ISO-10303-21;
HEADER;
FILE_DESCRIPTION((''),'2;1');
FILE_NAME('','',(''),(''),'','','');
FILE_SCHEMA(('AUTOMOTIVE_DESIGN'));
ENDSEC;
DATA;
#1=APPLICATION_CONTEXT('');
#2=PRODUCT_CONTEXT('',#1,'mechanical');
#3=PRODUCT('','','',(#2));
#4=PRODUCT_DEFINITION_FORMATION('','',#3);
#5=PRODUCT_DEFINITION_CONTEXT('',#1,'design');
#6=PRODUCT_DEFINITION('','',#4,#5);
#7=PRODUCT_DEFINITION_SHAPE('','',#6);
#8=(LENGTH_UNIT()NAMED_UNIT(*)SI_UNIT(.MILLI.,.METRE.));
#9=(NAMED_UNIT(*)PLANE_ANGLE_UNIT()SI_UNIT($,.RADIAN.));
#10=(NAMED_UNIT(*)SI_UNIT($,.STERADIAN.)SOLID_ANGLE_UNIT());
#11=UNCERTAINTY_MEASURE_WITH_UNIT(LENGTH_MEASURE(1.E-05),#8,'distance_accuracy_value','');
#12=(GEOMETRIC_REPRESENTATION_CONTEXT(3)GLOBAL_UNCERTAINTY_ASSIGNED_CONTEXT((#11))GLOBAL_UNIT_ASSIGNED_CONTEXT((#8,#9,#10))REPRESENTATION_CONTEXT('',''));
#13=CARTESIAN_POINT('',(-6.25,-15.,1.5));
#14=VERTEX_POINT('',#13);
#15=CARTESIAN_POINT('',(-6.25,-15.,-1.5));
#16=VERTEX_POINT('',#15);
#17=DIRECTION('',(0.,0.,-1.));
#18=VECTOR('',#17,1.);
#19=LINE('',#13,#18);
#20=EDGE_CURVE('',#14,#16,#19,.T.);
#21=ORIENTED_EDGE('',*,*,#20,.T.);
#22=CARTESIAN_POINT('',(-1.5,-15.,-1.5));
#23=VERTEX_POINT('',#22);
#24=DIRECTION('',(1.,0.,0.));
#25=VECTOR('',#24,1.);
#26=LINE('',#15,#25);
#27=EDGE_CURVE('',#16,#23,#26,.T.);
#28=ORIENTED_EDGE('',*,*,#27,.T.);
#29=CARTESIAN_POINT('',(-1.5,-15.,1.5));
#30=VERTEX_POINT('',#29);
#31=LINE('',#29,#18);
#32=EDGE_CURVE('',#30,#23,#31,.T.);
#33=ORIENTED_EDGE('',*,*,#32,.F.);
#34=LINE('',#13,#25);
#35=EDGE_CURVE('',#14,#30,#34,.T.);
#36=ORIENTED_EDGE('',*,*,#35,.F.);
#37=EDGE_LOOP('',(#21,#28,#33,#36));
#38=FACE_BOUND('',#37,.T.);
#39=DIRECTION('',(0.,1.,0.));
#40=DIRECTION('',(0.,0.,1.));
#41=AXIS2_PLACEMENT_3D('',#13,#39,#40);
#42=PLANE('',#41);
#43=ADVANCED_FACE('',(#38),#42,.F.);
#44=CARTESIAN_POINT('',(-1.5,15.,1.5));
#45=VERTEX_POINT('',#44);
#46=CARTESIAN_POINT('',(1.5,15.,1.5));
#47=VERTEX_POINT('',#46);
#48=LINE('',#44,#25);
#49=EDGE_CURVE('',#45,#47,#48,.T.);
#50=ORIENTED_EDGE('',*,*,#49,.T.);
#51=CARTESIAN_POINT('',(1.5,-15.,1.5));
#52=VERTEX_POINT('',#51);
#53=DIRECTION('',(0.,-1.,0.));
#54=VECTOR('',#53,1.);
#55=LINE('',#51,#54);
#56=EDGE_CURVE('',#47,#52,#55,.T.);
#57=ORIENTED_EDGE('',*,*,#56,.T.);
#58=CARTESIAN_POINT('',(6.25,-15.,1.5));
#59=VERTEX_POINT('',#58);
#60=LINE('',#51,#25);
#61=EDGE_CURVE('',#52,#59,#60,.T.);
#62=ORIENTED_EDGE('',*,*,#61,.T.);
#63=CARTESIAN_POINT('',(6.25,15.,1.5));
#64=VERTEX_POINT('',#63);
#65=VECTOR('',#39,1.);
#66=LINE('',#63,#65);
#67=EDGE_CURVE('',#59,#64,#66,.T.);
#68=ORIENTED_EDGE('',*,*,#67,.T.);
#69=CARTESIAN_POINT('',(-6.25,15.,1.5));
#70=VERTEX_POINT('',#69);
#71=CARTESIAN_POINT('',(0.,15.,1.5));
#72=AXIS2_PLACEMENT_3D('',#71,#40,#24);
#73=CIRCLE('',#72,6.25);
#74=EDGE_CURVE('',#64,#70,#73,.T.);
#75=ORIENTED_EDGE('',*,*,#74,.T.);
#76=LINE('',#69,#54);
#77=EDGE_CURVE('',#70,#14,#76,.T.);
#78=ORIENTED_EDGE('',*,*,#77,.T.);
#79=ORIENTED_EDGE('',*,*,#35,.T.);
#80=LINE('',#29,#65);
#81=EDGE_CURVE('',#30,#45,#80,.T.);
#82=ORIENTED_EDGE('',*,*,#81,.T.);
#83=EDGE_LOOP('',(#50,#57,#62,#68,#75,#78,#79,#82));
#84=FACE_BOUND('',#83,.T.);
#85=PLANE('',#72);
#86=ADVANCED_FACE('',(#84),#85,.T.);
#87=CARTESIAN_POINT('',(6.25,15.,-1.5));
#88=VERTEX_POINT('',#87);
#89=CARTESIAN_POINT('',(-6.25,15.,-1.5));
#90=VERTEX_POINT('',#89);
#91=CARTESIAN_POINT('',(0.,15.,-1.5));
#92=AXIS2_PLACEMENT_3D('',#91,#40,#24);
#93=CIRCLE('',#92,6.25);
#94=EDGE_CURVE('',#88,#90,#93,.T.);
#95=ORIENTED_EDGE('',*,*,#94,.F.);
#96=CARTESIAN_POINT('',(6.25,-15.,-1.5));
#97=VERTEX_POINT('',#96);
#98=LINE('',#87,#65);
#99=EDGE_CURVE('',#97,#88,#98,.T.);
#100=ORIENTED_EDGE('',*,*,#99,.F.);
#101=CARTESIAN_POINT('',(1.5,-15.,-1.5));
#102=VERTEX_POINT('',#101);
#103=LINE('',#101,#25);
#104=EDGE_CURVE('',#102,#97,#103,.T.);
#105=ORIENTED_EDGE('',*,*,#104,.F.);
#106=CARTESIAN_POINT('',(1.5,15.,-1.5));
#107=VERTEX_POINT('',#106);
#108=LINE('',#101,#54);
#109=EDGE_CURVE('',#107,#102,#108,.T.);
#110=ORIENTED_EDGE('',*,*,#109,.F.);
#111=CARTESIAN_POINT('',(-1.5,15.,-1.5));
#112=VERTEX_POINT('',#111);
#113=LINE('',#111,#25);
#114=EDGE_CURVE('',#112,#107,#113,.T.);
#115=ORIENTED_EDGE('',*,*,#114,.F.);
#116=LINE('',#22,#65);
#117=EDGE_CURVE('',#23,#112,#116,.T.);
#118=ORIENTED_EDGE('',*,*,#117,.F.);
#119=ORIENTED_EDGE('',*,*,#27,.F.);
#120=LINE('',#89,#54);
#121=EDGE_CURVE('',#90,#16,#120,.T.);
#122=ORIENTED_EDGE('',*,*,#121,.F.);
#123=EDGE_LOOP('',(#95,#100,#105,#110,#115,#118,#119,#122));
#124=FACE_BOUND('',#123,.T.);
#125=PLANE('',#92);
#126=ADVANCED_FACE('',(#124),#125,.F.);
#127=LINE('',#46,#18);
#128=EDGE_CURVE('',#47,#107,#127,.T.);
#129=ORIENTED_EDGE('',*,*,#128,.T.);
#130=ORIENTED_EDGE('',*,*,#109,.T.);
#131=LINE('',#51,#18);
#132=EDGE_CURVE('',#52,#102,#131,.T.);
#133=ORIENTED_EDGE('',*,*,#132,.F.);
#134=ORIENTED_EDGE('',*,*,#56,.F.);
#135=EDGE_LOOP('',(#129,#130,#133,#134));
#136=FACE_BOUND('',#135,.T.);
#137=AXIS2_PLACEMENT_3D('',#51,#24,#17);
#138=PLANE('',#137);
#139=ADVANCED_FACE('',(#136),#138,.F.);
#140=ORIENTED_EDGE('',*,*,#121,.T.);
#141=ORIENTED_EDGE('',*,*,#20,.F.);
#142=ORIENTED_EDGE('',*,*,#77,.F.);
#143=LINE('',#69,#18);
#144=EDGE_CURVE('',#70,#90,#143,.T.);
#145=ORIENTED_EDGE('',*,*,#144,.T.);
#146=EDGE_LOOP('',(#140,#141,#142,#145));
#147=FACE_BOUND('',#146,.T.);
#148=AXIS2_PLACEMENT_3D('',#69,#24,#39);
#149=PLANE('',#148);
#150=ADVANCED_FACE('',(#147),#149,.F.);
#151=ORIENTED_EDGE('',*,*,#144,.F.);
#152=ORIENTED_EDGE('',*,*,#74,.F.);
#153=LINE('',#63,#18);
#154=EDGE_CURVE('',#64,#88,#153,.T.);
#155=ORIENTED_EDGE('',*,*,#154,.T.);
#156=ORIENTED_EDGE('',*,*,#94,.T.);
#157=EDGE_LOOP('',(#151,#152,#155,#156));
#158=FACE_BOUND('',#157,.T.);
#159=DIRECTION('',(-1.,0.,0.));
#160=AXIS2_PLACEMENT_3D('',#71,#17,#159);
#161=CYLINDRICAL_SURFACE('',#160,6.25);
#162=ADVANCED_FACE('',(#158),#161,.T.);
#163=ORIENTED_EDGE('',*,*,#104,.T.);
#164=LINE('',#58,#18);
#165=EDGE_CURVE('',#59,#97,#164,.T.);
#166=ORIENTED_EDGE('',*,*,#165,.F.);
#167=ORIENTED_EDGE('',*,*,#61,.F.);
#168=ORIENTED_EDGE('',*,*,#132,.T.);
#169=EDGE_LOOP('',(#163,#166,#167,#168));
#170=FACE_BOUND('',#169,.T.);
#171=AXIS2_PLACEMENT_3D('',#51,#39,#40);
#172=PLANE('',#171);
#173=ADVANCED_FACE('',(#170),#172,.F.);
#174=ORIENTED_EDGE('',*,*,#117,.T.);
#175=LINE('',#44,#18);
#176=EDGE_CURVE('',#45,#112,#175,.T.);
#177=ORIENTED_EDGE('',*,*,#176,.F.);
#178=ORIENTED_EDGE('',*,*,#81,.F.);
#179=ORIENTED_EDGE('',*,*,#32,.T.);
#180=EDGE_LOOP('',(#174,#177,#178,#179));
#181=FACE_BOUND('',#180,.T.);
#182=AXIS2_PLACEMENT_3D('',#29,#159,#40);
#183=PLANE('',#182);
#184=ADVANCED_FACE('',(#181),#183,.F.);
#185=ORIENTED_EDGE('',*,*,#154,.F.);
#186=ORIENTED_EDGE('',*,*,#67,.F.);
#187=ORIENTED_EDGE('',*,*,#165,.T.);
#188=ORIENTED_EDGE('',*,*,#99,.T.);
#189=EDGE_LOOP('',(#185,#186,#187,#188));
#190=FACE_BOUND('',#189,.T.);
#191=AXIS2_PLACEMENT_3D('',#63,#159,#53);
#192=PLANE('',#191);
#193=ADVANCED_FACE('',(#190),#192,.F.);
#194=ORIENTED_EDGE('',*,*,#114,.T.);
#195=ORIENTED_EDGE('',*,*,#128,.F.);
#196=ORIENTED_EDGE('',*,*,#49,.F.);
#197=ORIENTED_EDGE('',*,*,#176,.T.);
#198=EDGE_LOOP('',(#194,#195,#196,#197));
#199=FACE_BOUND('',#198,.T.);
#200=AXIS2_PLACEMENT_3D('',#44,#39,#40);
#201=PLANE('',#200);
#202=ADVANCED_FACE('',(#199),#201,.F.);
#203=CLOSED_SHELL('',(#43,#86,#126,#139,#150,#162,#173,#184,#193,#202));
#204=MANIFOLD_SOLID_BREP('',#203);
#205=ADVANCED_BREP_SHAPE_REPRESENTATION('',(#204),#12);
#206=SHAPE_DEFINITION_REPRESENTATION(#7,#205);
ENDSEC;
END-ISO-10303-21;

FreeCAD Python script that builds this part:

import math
import FreeCAD as App
import Part
import Sketcher
from FreeCAD import Vector
Q = App.Units.Quantity

doc = App.newDocument("Part")
params = doc.addObject("Spreadsheet::Sheet", "Params")
for row, (alias, value) in enumerate([
    ("sketch1_width", "3 mm"),
    ("sketch1_height", "30 mm"),
    ("sketch1_radius", "6.25 mm"),
    ("pad1_length", "3 mm"),
], start=1):
    params.set(f"A{row}", alias)
    params.set(f"B{row}", "=" + value)
    params.setAlias(f"B{row}", alias)

body = doc.addObject("PartDesign::Body", "Body")

# Sketch on XY plane
sketch1 = doc.addObject("Sketcher::SketchObject", "Sketch")
body.addObject(sketch1)
sketch1.AttachmentSupport = (doc.XY_Plane, [""])
sketch1.MapMode = "FlatFace"
sketch1.addGeometry(Part.LineSegment(Vector(1.5, -15, 0), Vector(6.2, -15, 0)), False)
sketch1.addGeometry(Part.LineSegment(Vector(6.2, -15, 0), Vector(6.2, 15, 0)), False)
sketch1.addGeometry(Part.ArcOfCircle(Part.Circle(Vector(0, 15, 0), Vector(0, 0, 1), 6.2), math.radians(0), math.radians(180)), False)
sketch1.addGeometry(Part.LineSegment(Vector(-6.2, 15, 0), Vector(-6.2, -15, 0)), False)
sketch1.addGeometry(Part.LineSegment(Vector(-6.2, -15, 0), Vector(-1.5, -15, 0)), False)
sketch1.addGeometry(Part.LineSegment(Vector(-1.5, -15, 0), Vector(-1.5, 15, 0)), False)
sketch1.addGeometry(Part.LineSegment(Vector(-1.5, 15, 0), Vector(1.5, 15, 0)), False)
sketch1.addGeometry(Part.LineSegment(Vector(1.5, 15, 0), Vector(1.5, -15, 0)), False)
sketch1.addConstraint(Sketcher.Constraint("Coincident", 0, 2, 1, 1))
sketch1.addConstraint(Sketcher.Constraint("Tangent", 1, 2, 2, 1))
sketch1.addConstraint(Sketcher.Constraint("Tangent", 2, 2, 3, 1))
sketch1.addConstraint(Sketcher.Constraint("Coincident", 3, 2, 4, 1))
sketch1.addConstraint(Sketcher.Constraint("Coincident", 4, 2, 5, 1))
sketch1.addConstraint(Sketcher.Constraint("Coincident", 5, 2, 6, 1))
sketch1.addConstraint(Sketcher.Constraint("Coincident", 6, 2, 7, 1))
sketch1.addConstraint(Sketcher.Constraint("Coincident", 7, 2, 0, 1))
sketch1.addConstraint(Sketcher.Constraint("Horizontal", 0))
sketch1.addConstraint(Sketcher.Constraint("Vertical", 1))
sketch1.addConstraint(Sketcher.Constraint("Vertical", 3))
sketch1.addConstraint(Sketcher.Constraint("Horizontal", 4))
sketch1.addConstraint(Sketcher.Constraint("Vertical", 5))
sketch1.addConstraint(Sketcher.Constraint("Horizontal", 6))
sketch1.addConstraint(Sketcher.Constraint("Vertical", 7))
sketch1.addConstraint(Sketcher.Constraint("Symmetric", 0, 2, 2, 2, -1, 1))
sketch1.addConstraint(Sketcher.Constraint("Symmetric", 4, 2, 6, 2, -1, 1))
sketch1.addConstraint(Sketcher.Constraint("Horizontal", 0, 2, 3, 2))
sketch1.addConstraint(Sketcher.Constraint("DistanceX", 6, 1, 6, 2, Q("3 mm")))
sketch1.addConstraint(Sketcher.Constraint("DistanceY", 1, 1, 1, 2, Q("30 mm")))
sketch1.addConstraint(Sketcher.Constraint("Radius", 2, Q("6.25 mm")))
sketch1.setExpression("Constraints[18]", "Params.sketch1_width")
sketch1.setExpression("Constraints[19]", "Params.sketch1_height")
sketch1.setExpression("Constraints[20]", "Params.sketch1_radius")
pad1 = doc.addObject("PartDesign::Pad", "Pad")
body.addObject(pad1)
pad1.Profile = sketch1
pad1.setExpression("Length", "Params.pad1_length")
pad1.Midplane = True

doc.recompute()
